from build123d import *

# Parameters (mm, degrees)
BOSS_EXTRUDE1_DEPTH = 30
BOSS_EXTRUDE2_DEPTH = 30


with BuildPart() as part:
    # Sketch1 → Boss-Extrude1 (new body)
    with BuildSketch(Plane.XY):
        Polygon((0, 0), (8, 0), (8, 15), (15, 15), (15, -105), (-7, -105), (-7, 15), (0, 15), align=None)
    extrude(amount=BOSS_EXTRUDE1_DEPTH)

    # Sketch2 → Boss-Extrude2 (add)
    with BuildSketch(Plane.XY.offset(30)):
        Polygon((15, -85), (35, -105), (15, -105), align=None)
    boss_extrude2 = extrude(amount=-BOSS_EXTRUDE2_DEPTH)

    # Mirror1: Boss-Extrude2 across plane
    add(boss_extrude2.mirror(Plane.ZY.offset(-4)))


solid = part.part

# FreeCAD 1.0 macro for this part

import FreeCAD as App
import Part
import Sketcher

doc = App.newDocument("Part")
body = doc.addObject("PartDesign::Body", "Body")

sketch1 = body.newObject("Sketcher::SketchObject", "Sketch")
sketch1.AttachmentSupport = (doc.getObject("XY_Plane"), [""])
sketch1.MapMode = "FlatFace"
sketch1.addGeometry([
    Part.LineSegment(App.Vector(8, 0, 0), App.Vector(0, 0, 0)),
    Part.LineSegment(App.Vector(0, 0, 0), App.Vector(0, 15, 0)),
    Part.LineSegment(App.Vector(0, 15, 0), App.Vector(-7, 15, 0)),
    Part.LineSegment(App.Vector(-7, 15, 0), App.Vector(-7, -105, 0)),
    Part.LineSegment(App.Vector(-7, -105, 0), App.Vector(15, -105, 0)),
    Part.LineSegment(App.Vector(15, -105, 0), App.Vector(15, 15, 0)),
    Part.LineSegment(App.Vector(15, 15, 0), App.Vector(8, 15, 0)),
    Part.LineSegment(App.Vector(8, 15, 0), App.Vector(8, 0, 0)),
], False)
sketch1.addConstraint([
    Sketcher.Constraint("Coincident", 0, 2, 1, 1),
    Sketcher.Constraint("Coincident", 1, 2, 2, 1),
    Sketcher.Constraint("Coincident", 2, 2, 3, 1),
    Sketcher.Constraint("Coincident", 3, 2, 4, 1),
    Sketcher.Constraint("Coincident", 4, 2, 5, 1),
    Sketcher.Constraint("Coincident", 5, 2, 6, 1),
    Sketcher.Constraint("Coincident", 6, 2, 7, 1),
    Sketcher.Constraint("Coincident", 7, 2, 0, 1),
    Sketcher.Constraint("Horizontal", 0),
    Sketcher.Constraint("Vertical", 1),
    Sketcher.Constraint("Horizontal", 2),
    Sketcher.Constraint("Vertical", 3),
    Sketcher.Constraint("Horizontal", 4),
    Sketcher.Constraint("Vertical", 5),
    Sketcher.Constraint("Horizontal", 6),
    Sketcher.Constraint("Vertical", 7),
    Sketcher.Constraint("Coincident", 0, 2, -1, 1),
    Sketcher.Constraint("Horizontal", 2, 2, 5, 2),
    Sketcher.Constraint("Equal", 2, 6),
    Sketcher.Constraint("DistanceX", 0, 2, 0, 1, 8.0),
    Sketcher.Constraint("DistanceX", 2, 2, 2, 1, 7.0),
    Sketcher.Constraint("DistanceY", 1, 1, 1, 2, 15.0),
    Sketcher.Constraint("DistanceY", 3, 2, 3, 1, 120.0),
])
pad1 = body.newObject("PartDesign::Pad", "Pad")
pad1.Profile = sketch1
pad1.Length = 30

sketch2 = body.newObject("Sketcher::SketchObject", "Sketch001")
sketch2.AttachmentSupport = (doc.getObject("XY_Plane"), [""])
sketch2.MapMode = "FlatFace"
sketch2.AttachmentOffset = App.Placement(App.Vector(0, 0, 30), App.Rotation())
sketch2.addGeometry([
    Part.LineSegment(App.Vector(35, -105, 0), App.Vector(15, -85, 0)),
    Part.LineSegment(App.Vector(15, -85, 0), App.Vector(15, -105, 0)),
    Part.LineSegment(App.Vector(15, -105, 0), App.Vector(35, -105, 0)),
], False)
sketch2.addConstraint([
    Sketcher.Constraint("Coincident", 0, 2, 1, 1),
    Sketcher.Constraint("Coincident", 1, 2, 2, 1),
    Sketcher.Constraint("Coincident", 2, 2, 0, 1),
    Sketcher.Constraint("Vertical", 1),
    Sketcher.Constraint("Horizontal", 2),
    Sketcher.Constraint("Equal", 2, 1),
    Sketcher.Constraint("DistanceX", 2, 1, 2, 2, 20.0),
    Sketcher.Constraint("DistanceX", -1, 1, 0, 2, 15.0),
    Sketcher.Constraint("DistanceY", 0, 2, -1, 1, 85.0),
])
pad2 = body.newObject("PartDesign::Pad", "Pad001")
pad2.Profile = sketch2
pad2.Length = 30
pad2.Reversed = True
doc.recompute()

datumplane = body.newObject("PartDesign::Plane", "DatumPlane")
datumplane.AttachmentSupport = (doc.getObject("YZ_Plane"), [""])
datumplane.MapMode = "FlatFace"
datumplane.AttachmentOffset = App.Placement(App.Vector(0, 0, 4), App.Rotation())
mirrored = body.newObject("PartDesign::Mirrored", "Mirrored")
mirrored.Originals = [pad2]
mirrored.MirrorPlane = (datumplane, [""])
body.Tip = mirrored

doc.recompute()
